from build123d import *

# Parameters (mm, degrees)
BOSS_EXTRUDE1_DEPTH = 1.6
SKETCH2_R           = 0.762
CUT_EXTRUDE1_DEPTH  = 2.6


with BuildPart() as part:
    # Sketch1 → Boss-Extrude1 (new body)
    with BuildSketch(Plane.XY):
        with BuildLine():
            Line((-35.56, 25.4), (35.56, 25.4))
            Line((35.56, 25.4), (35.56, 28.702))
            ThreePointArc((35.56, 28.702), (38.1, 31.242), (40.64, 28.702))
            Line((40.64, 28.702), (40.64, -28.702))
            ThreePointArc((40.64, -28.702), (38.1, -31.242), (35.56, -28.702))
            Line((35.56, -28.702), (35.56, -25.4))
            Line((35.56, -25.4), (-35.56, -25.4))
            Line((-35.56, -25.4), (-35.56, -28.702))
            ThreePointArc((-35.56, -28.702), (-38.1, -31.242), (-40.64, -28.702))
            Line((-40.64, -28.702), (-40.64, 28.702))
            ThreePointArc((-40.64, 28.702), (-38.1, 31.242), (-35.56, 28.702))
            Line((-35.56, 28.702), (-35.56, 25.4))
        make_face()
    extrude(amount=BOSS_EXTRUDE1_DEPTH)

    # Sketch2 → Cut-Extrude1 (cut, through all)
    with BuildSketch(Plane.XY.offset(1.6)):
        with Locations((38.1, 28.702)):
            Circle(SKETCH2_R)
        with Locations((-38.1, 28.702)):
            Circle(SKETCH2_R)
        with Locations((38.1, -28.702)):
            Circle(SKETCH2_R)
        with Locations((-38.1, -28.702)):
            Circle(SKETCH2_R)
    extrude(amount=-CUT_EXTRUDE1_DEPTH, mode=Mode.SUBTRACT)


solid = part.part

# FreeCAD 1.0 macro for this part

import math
import FreeCAD as App
import Part
import Sketcher

V = App.Vector
Q = App.Units.Quantity

doc = App.newDocument("Part")
body = doc.addObject("PartDesign::Body", "Body")

# Sketch on XY plane
sketch1 = doc.addObject("Sketcher::SketchObject", "Sketch")
body.addObject(sketch1)
sketch1.AttachmentSupport = (doc.XY_Plane, [""])
sketch1.MapMode = "FlatFace"
sketch1.addGeometry([
    Part.LineSegment(V(35.56, 25.4, 0), V(-35.56, 25.4, 0)),  # 0
    Part.LineSegment(V(-35.56, 25.4, 0), V(-35.56, 28.702, 0)),  # 1
    Part.ArcOfCircle(Part.Circle(V(-38.1, 28.702, 0), V(0, 0, 1), 2.54), math.radians(0), math.radians(180)),  # 2
    Part.LineSegment(V(-40.64, 28.702, 0), V(-40.64, -28.702, 0)),  # 3
    Part.ArcOfCircle(Part.Circle(V(-38.1, -28.702, 0), V(0, 0, 1), 2.54), math.radians(180), math.radians(360)),  # 4
    Part.LineSegment(V(-35.56, -28.702, 0), V(-35.56, -25.4, 0)),  # 5
    Part.LineSegment(V(-35.56, -25.4, 0), V(35.56, -25.4, 0)),  # 6
    Part.LineSegment(V(35.56, -25.4, 0), V(35.56, -28.702, 0)),  # 7
    Part.ArcOfCircle(Part.Circle(V(38.1, -28.702, 0), V(0, 0, 1), 2.54), math.radians(180), math.radians(360)),  # 8
    Part.LineSegment(V(40.64, -28.702, 0), V(40.64, 28.702, 0)),  # 9
    Part.ArcOfCircle(Part.Circle(V(38.1, 28.702, 0), V(0, 0, 1), 2.54), math.radians(0), math.radians(180)),  # 10
    Part.LineSegment(V(35.56, 28.702, 0), V(35.56, 25.4, 0)),  # 11
], False)
sketch1.addConstraint([
    Sketcher.Constraint("Coincident", 0, 2, 1, 1),
    Sketcher.Constraint("Tangent", 1, 2, 2, 1),
    Sketcher.Constraint("Tangent", 2, 2, 3, 1),
    Sketcher.Constraint("Tangent", 3, 2, 4, 1),
    Sketcher.Constraint("Tangent", 4, 2, 5, 1),
    Sketcher.Constraint("Coincident", 5, 2, 6, 1),
    Sketcher.Constraint("Coincident", 6, 2, 7, 1),
    Sketcher.Constraint("Tangent", 7, 2, 8, 1),
    Sketcher.Constraint("Tangent", 8, 2, 9, 1),
    Sketcher.Constraint("Tangent", 9, 2, 10, 1),
    Sketcher.Constraint("Tangent", 10, 2, 11, 1),
    Sketcher.Constraint("Coincident", 11, 2, 0, 1),
    Sketcher.Constraint("Horizontal", 0),
    Sketcher.Constraint("Vertical", 1),
    Sketcher.Constraint("Vertical", 3),
    Sketcher.Constraint("Vertical", 5),
    Sketcher.Constraint("Horizontal", 6),
    Sketcher.Constraint("Vertical", 7),
    Sketcher.Constraint("Vertical", 9),
    Sketcher.Constraint("Vertical", 11),
    Sketcher.Constraint("Equal", 2, 4),
    Sketcher.Constraint("Equal", 4, 8),
    Sketcher.Constraint("Equal", 8, 10),
    Sketcher.Constraint("Symmetric", 2, 3, 8, 3, -1, 1),
    Sketcher.Constraint("Horizontal", 4, 3, 8, 3),
    Sketcher.Constraint("Horizontal", 2, 3, 10, 3),
    Sketcher.Constraint("Equal", 1, 5),
    Sketcher.Constraint("Radius", 2, Q("0.1 in")),
    Sketcher.Constraint("DistanceX", 0, 2, 0, 1, Q("2.8 in")),
    Sketcher.Constraint("DistanceY", -1, 1, 0, 2, Q("1 in")),
    Sketcher.Constraint("DistanceY", 1, 1, 1, 2, Q("0.13 in")),
])
pad1 = doc.addObject("PartDesign::Pad", "Pad")
body.addObject(pad1)
pad1.Profile = sketch1
pad1.Length = 1.6

# Sketch on XY plane
sketch2 = doc.addObject("Sketcher::SketchObject", "Sketch001")
body.addObject(sketch2)
sketch2.AttachmentSupport = (doc.XY_Plane, [""])
sketch2.MapMode = "FlatFace"
sketch2.AttachmentOffset = App.Placement(V(0, 0, 1.6), App.Rotation())
sketch2.addGeometry([
    Part.Circle(V(38.1, 28.702, 0), V(0, 0, 1), 0.762),
    Part.Circle(V(-38.1, 28.702, 0), V(0, 0, 1), 0.762),
    Part.Circle(V(38.1, -28.702, 0), V(0, 0, 1), 0.762),
    Part.Circle(V(-38.1, -28.702, 0), V(0, 0, 1), 0.762),
], False)
sketch2.addConstraint([
    Sketcher.Constraint("Equal", 0, 1),
    Sketcher.Constraint("Equal", 1, 2),
    Sketcher.Constraint("Equal", 2, 3),
    Sketcher.Constraint("Symmetric", 1, 3, 2, 3, -1, 1),
    Sketcher.Constraint("Symmetric", 0, 3, 3, 3, -1, 1),
    Sketcher.Constraint("Symmetric", 0, 3, 1, 3, -2),
    Sketcher.Constraint("Diameter", 0, Q("0.06 in")),
    Sketcher.Constraint("DistanceX", 1, 3, 0, 3, Q("3 in")),
    Sketcher.Constraint("DistanceY", -1, 1, 0, 3, Q("1.13 in")),
])
pocket1 = doc.addObject("PartDesign::Pocket", "Pocket")
body.addObject(pocket1)
pocket1.Profile = sketch2
pocket1.Type = "ThroughAll"

doc.recompute()
